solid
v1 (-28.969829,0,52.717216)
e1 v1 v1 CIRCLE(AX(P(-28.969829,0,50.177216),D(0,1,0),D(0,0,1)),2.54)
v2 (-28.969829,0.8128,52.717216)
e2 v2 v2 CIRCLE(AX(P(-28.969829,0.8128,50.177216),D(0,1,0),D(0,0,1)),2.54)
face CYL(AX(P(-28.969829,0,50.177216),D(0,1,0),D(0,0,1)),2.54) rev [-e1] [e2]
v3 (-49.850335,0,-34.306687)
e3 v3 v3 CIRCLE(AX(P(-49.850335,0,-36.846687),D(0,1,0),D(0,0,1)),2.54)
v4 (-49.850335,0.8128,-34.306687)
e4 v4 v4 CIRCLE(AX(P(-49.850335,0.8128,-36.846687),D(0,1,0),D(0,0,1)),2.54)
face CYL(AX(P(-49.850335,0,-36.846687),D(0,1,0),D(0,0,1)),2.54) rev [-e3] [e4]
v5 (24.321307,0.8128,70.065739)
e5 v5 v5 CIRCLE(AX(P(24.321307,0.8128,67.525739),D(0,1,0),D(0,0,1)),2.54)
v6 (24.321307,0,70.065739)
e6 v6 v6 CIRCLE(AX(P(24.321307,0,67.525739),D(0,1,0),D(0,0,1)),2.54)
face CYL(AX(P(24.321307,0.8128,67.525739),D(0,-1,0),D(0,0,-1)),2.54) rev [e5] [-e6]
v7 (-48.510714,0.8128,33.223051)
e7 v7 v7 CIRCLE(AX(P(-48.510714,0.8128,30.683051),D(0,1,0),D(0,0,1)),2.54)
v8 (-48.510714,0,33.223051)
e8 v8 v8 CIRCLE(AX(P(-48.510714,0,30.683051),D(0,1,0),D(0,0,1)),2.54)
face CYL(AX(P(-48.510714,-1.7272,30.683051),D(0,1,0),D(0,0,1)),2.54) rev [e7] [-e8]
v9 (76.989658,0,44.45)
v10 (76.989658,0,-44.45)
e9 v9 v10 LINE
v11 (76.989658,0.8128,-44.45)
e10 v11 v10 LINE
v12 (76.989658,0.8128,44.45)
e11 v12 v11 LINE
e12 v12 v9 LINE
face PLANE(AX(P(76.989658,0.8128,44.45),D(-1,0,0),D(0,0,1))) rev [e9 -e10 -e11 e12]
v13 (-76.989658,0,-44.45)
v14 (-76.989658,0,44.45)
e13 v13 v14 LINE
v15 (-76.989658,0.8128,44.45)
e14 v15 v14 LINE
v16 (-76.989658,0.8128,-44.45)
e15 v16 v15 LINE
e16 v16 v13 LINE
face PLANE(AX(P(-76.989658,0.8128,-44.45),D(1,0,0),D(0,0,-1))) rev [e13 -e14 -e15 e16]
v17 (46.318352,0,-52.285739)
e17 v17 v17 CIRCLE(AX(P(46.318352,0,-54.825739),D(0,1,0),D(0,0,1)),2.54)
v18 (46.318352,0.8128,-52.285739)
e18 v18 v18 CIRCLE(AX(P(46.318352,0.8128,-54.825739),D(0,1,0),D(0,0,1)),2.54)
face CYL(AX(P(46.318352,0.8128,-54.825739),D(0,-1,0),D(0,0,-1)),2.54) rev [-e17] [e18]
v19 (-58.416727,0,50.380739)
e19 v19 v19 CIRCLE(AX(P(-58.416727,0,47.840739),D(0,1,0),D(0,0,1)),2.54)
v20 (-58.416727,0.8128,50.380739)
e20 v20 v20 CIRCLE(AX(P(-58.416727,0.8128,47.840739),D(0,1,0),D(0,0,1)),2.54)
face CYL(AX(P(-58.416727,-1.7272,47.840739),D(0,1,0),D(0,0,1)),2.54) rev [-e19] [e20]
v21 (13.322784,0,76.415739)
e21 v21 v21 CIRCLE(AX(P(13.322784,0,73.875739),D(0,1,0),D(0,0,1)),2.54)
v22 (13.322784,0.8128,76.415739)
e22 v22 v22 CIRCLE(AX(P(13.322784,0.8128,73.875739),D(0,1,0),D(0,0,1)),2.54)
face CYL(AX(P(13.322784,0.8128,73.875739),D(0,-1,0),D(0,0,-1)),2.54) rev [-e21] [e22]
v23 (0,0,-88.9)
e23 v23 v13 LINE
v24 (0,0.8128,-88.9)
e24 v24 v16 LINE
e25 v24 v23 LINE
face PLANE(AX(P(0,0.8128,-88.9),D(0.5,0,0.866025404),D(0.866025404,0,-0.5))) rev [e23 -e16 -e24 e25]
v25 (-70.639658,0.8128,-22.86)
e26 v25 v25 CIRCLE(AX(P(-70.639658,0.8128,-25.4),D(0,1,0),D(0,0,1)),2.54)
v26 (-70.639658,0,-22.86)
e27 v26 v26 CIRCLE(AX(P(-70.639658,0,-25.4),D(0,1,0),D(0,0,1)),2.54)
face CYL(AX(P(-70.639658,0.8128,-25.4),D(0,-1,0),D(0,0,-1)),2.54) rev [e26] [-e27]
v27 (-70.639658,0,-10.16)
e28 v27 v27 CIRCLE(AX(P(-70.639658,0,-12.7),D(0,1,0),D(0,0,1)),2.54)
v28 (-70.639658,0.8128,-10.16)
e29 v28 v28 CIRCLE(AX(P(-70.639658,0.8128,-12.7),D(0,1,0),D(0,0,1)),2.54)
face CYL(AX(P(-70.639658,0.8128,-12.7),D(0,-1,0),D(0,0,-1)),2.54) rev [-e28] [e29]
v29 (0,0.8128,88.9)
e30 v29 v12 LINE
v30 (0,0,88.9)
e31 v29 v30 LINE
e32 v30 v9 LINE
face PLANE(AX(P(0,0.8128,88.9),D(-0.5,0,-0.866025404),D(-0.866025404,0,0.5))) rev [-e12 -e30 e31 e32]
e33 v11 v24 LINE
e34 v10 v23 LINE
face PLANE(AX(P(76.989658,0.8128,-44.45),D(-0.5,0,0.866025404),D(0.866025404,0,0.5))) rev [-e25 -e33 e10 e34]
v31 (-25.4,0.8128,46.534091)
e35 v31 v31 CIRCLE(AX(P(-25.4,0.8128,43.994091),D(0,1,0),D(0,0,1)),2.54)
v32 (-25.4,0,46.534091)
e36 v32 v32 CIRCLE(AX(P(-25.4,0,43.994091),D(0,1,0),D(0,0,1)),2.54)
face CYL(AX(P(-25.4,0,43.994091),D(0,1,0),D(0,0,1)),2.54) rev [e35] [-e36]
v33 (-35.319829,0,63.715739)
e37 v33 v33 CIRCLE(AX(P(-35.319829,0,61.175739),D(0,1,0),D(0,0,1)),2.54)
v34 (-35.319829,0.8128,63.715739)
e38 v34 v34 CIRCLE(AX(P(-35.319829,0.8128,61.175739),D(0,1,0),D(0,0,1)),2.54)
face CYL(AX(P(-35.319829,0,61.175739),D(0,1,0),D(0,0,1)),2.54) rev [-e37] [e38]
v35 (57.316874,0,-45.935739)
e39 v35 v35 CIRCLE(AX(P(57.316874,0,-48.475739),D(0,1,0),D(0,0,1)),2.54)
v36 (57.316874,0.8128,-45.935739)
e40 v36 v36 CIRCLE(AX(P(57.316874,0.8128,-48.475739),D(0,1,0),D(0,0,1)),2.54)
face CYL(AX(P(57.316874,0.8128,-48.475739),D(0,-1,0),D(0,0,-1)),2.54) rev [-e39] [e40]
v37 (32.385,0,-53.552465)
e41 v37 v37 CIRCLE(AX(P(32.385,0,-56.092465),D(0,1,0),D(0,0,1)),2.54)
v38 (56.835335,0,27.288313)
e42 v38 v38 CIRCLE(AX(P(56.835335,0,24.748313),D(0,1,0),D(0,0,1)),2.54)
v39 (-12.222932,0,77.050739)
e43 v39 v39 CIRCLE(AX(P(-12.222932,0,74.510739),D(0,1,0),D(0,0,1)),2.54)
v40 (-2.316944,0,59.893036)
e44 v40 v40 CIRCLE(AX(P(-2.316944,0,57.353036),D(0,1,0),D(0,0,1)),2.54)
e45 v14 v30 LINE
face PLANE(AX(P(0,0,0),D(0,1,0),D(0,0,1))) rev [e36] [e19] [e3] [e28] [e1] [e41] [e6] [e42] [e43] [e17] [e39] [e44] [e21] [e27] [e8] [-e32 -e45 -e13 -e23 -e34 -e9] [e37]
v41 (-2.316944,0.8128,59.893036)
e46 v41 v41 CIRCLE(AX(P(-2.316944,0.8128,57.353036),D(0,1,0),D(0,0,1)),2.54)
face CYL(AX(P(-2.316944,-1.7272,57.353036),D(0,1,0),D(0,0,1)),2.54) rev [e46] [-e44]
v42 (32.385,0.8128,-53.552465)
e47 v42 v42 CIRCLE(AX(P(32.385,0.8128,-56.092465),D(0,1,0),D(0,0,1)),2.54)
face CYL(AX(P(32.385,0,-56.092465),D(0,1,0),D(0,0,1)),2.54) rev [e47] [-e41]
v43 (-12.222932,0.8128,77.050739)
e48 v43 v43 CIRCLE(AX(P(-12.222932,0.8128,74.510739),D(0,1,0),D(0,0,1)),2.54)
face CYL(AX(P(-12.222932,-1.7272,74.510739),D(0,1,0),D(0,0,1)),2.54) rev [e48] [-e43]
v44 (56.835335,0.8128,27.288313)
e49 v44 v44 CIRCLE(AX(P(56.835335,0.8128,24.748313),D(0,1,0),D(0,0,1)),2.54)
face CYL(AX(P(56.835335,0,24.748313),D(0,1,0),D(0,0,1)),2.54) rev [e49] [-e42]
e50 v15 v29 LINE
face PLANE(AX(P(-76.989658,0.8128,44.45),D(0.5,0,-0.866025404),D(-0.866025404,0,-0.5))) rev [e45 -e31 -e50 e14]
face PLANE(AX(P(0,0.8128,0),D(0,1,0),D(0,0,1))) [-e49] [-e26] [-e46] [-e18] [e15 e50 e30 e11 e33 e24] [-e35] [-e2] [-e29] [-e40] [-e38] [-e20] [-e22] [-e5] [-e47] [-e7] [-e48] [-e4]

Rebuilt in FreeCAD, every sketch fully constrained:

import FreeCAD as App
import Part
import Sketcher
Q = App.Units.Quantity


def add_polygon(sketch, points):
    """Adds a closed chain of lines whose ends are joined by coincident constraints."""
    first, n = sketch.GeometryCount, len(points)
    for a, b in zip(points, points[1:] + points[:1]):
        sketch.addGeometry(Part.LineSegment(App.Vector(*a, 0), App.Vector(*b, 0)), False)
    for i in range(n):
        sketch.addConstraint(Sketcher.Constraint("Coincident", first + i, 2, first + (i + 1) % n, 1))

doc = App.newDocument("Part")
body = doc.addObject("PartDesign::Body", "Body")

# Sketch on XZ plane
sketch1 = body.newObject("Sketcher::SketchObject", "Sketch")
sketch1.AttachmentSupport = (doc.getObject("XZ_Plane"), [""])
sketch1.MapMode = "FlatFace"
add_polygon(sketch1, [(0, -88.9), (-77, -44.5), (-77, 44.5), (0, 88.9), (77, 44.5), (77, -44.5)])  # lines 0-5
sketch1.addGeometry(Part.Circle(App.Vector(13.3, 73.9, 0), App.Vector(0, 0, 1), 2.5), False)  # 6
sketch1.addGeometry(Part.Circle(App.Vector(24.3, 67.5, 0), App.Vector(0, 0, 1), 2.5), False)  # 7
sketch1.addGeometry(Part.Circle(App.Vector(-70.6, -12.7, 0), App.Vector(0, 0, 1), 2.5), False)  # 8
sketch1.addGeometry(Part.Circle(App.Vector(-70.6, -25.4, 0), App.Vector(0, 0, 1), 2.5), False)  # 9
sketch1.addGeometry(Part.Circle(App.Vector(57.3, -48.5, 0), App.Vector(0, 0, 1), 2.5), False)  # 10
sketch1.addGeometry(Part.Circle(App.Vector(46.3, -54.8, 0), App.Vector(0, 0, 1), 2.5), False)  # 11
sketch1.addConstraint([
    Sketcher.Constraint("Vertical", 1),
    Sketcher.Constraint("Vertical", 4),
    Sketcher.Constraint("Equal", 6, 7),
    Sketcher.Constraint("Equal", 7, 8),
    Sketcher.Constraint("Equal", 8, 9),
    Sketcher.Constraint("Equal", 9, 10),
    Sketcher.Constraint("Equal", 10, 11),
    Sketcher.Constraint("Symmetric", 0, 2, 3, 2, -1, 1),
    Sketcher.Constraint("Symmetric", 2, 2, 5, 2, -1, 1),
    Sketcher.Constraint("PointOnObject", 2, 2, -2),
    Sketcher.Constraint("Parallel", 2, 5),
    Sketcher.Constraint("Horizontal", 1, 2, 3, 2),
    Sketcher.Constraint("Vertical", 8, 3, 9, 3),
    Sketcher.Constraint("Diameter", 6, Q("0.2 in")),
    Sketcher.Constraint("DistanceY", 1, 1, 1, 2, Q("3.5 in")),
    Sketcher.Constraint("DistanceY", 9, 3, -1, 1, Q("1 in")),
    Sketcher.Constraint("Angle", 0, Q("150 deg")),
    Sketcher.Constraint("DistanceY", 8, 3, 2, 2, Q("4 in")),
    Sketcher.Constraint("Distance", 0, Q("3.5 in")),
    Sketcher.Constraint("DistanceY", 7, 3, 6, 3, Q("0.25 in")),
    Sketcher.Constraint("DistanceY", 11, 3, 10, 3, Q("0.25 in")),
    Sketcher.Constraint("DistanceX", 0, 2, 9, 3, Q("0.25 in")),
    Sketcher.Constraint("DistanceY", -1, 1, 6, 3, 73.875739),
    Sketcher.Constraint("DistanceY", 10, 3, -1, 1, 48.475739),
    Sketcher.Constraint("DistanceX", -1, 1, 11, 3, 46.318352),
    Sketcher.Constraint("DistanceX", 6, 3, 10, 3, 43.994091),
    Sketcher.Constraint("DistanceX", 7, 3, 3, 2, 52.668352),
    Sketcher.Constraint("DistanceX", -1, 1, 6, 3, 13.322784),
])
pad1 = body.newObject("PartDesign::Pad", "Pad")
pad1.Profile = sketch1
pad1.Length = Q("0.032 in")
pad1.Reversed = True

# Sketch on XZ plane
sketch2 = body.newObject("Sketcher::SketchObject", "Sketch001")
sketch2.AttachmentSupport = (doc.getObject("XZ_Plane"), [""])
sketch2.MapMode = "FlatFace"
sketch2.AttachmentOffset = App.Placement(App.Vector(0, 0, -0.032 * 25.4), App.Rotation())
sketch2.addGeometry([
    Part.Circle(App.Vector(-49.9, -36.8, 0), App.Vector(0, 0, 1), 2.5),
    Part.Circle(App.Vector(-25.4, 44, 0), App.Vector(0, 0, 1), 2.5),
    Part.Circle(App.Vector(32.4, -56.1, 0), App.Vector(0, 0, 1), 2.5),
    Part.Circle(App.Vector(56.8, 24.7, 0), App.Vector(0, 0, 1), 2.5),
], False)
sketch2.addConstraint([
    Sketcher.Constraint("Equal", 0, 1),
    Sketcher.Constraint("Equal", 1, 2),
    Sketcher.Constraint("Equal", 2, 3),
    Sketcher.Constraint("Diameter", 0, Q("0.2 in")),
    Sketcher.Constraint("DistanceX", 1, 3, -1, 1, Q("1 in")),
    Sketcher.Constraint("DistanceX", -1, 1, 2, 3, Q("1.275 in")),
    Sketcher.Constraint("DistanceY", 0, 3, 3, 3, Q("2.425 in")),
    Sketcher.Constraint("DistanceY", -1, 1, 1, 3, 43.994091),
    Sketcher.Constraint("DistanceX", 0, 3, 3, 3, 106.685669),
    Sketcher.Constraint("DistanceX", 0, 3, -1, 1, 49.850335),
    Sketcher.Constraint("DistanceY", 0, 3, -1, 1, 36.846687),
    Sketcher.Constraint("DistanceY", 2, 3, -1, 1, 56.092465),
])
pocket1 = body.newObject("PartDesign::Pocket", "Pocket")
pocket1.Profile = sketch2
pocket1.Type = "ThroughAll"
pocket1.Reversed = True

# Sketch on XZ plane
sketch3 = body.newObject("Sketcher::SketchObject", "Sketch002")
sketch3.AttachmentSupport = (doc.getObject("XZ_Plane"), [""])
sketch3.MapMode = "FlatFace"
sketch3.AttachmentOffset = App.Placement(App.Vector(0, 0, -0.032 * 25.4), App.Rotation())
sketch3.addGeometry([
    Part.Circle(App.Vector(-35.3, 61.2, 0), App.Vector(0, 0, 1), 2.5),
    Part.Circle(App.Vector(-29, 50.2, 0), App.Vector(0, 0, 1), 2.5),
], False)
sketch3.addConstraint([
    Sketcher.Constraint("Equal", 0, 1),
    Sketcher.Constraint("Diameter", 0, Q("0.2 in")),
    Sketcher.Constraint("DistanceX", 0, 3, 1, 3, Q("0.25 in")),
    Sketcher.Constraint("DistanceX", 0, 3, -1, 1, 35.319829),
    Sketcher.Constraint("DistanceY", -1, 1, 0, 3, 61.175739),
    Sketcher.Constraint("DistanceY", -1, 1, 1, 3, 50.177216),
])
pocket2 = body.newObject("PartDesign::Pocket", "Pocket001")
pocket2.Profile = sketch3
pocket2.Type = "ThroughAll"
pocket2.Reversed = True

# Sketch on XZ plane
sketch4 = body.newObject("Sketcher::SketchObject", "Sketch003")
sketch4.AttachmentSupport = (doc.getObject("XZ_Plane"), [""])
sketch4.MapMode = "FlatFace"
sketch4.AttachmentOffset = App.Placement(App.Vector(0, 0, -0.032 * 25.4), App.Rotation())
sketch4.addGeometry([
    Part.Circle(App.Vector(-2.3, 57.4, 0), App.Vector(0, 0, 1), 2.5),
    Part.Circle(App.Vector(-12.2, 74.5, 0), App.Vector(0, 0, 1), 2.5),
    Part.Circle(App.Vector(-58.4, 47.8, 0), App.Vector(0, 0, 1), 2.5),
    Part.Circle(App.Vector(-48.5, 30.7, 0), App.Vector(0, 0, 1), 2.5),
], False)
sketch4.addConstraint([
    Sketcher.Constraint("Equal", 0, 1),
    Sketcher.Constraint("Equal", 1, 2),
    Sketcher.Constraint("Equal", 2, 3),
    Sketcher.Constraint("Diameter", 0, Q("0.2 in")),
    Sketcher.Constraint("DistanceY", 2, 3, 1, 3, Q("1.05 in")),
    Sketcher.Constraint("DistanceY", 0, 3, 1, 3, Q("0.6755001 in")),
    Sketcher.Constraint("DistanceX", 1, 3, -1, 1, 12.222932),
    Sketcher.Constraint("DistanceY", -1, 1, 1, 3, 74.510739),
    Sketcher.Constraint("DistanceY", -1, 1, 3, 3, 30.683051),
    Sketcher.Constraint("DistanceX", 3, 3, 0, 3, 46.19377),
    Sketcher.Constraint("DistanceX", 0, 3, -1, 1, 2.316944),
    Sketcher.Constraint("DistanceX", 2, 3, -1, 1, 58.416727),
])
pocket3 = body.newObject("PartDesign::Pocket", "Pocket002")
pocket3.Profile = sketch4
pocket3.Length = Q("0.1 in")
pocket3.Reversed = True

doc.recompute()
